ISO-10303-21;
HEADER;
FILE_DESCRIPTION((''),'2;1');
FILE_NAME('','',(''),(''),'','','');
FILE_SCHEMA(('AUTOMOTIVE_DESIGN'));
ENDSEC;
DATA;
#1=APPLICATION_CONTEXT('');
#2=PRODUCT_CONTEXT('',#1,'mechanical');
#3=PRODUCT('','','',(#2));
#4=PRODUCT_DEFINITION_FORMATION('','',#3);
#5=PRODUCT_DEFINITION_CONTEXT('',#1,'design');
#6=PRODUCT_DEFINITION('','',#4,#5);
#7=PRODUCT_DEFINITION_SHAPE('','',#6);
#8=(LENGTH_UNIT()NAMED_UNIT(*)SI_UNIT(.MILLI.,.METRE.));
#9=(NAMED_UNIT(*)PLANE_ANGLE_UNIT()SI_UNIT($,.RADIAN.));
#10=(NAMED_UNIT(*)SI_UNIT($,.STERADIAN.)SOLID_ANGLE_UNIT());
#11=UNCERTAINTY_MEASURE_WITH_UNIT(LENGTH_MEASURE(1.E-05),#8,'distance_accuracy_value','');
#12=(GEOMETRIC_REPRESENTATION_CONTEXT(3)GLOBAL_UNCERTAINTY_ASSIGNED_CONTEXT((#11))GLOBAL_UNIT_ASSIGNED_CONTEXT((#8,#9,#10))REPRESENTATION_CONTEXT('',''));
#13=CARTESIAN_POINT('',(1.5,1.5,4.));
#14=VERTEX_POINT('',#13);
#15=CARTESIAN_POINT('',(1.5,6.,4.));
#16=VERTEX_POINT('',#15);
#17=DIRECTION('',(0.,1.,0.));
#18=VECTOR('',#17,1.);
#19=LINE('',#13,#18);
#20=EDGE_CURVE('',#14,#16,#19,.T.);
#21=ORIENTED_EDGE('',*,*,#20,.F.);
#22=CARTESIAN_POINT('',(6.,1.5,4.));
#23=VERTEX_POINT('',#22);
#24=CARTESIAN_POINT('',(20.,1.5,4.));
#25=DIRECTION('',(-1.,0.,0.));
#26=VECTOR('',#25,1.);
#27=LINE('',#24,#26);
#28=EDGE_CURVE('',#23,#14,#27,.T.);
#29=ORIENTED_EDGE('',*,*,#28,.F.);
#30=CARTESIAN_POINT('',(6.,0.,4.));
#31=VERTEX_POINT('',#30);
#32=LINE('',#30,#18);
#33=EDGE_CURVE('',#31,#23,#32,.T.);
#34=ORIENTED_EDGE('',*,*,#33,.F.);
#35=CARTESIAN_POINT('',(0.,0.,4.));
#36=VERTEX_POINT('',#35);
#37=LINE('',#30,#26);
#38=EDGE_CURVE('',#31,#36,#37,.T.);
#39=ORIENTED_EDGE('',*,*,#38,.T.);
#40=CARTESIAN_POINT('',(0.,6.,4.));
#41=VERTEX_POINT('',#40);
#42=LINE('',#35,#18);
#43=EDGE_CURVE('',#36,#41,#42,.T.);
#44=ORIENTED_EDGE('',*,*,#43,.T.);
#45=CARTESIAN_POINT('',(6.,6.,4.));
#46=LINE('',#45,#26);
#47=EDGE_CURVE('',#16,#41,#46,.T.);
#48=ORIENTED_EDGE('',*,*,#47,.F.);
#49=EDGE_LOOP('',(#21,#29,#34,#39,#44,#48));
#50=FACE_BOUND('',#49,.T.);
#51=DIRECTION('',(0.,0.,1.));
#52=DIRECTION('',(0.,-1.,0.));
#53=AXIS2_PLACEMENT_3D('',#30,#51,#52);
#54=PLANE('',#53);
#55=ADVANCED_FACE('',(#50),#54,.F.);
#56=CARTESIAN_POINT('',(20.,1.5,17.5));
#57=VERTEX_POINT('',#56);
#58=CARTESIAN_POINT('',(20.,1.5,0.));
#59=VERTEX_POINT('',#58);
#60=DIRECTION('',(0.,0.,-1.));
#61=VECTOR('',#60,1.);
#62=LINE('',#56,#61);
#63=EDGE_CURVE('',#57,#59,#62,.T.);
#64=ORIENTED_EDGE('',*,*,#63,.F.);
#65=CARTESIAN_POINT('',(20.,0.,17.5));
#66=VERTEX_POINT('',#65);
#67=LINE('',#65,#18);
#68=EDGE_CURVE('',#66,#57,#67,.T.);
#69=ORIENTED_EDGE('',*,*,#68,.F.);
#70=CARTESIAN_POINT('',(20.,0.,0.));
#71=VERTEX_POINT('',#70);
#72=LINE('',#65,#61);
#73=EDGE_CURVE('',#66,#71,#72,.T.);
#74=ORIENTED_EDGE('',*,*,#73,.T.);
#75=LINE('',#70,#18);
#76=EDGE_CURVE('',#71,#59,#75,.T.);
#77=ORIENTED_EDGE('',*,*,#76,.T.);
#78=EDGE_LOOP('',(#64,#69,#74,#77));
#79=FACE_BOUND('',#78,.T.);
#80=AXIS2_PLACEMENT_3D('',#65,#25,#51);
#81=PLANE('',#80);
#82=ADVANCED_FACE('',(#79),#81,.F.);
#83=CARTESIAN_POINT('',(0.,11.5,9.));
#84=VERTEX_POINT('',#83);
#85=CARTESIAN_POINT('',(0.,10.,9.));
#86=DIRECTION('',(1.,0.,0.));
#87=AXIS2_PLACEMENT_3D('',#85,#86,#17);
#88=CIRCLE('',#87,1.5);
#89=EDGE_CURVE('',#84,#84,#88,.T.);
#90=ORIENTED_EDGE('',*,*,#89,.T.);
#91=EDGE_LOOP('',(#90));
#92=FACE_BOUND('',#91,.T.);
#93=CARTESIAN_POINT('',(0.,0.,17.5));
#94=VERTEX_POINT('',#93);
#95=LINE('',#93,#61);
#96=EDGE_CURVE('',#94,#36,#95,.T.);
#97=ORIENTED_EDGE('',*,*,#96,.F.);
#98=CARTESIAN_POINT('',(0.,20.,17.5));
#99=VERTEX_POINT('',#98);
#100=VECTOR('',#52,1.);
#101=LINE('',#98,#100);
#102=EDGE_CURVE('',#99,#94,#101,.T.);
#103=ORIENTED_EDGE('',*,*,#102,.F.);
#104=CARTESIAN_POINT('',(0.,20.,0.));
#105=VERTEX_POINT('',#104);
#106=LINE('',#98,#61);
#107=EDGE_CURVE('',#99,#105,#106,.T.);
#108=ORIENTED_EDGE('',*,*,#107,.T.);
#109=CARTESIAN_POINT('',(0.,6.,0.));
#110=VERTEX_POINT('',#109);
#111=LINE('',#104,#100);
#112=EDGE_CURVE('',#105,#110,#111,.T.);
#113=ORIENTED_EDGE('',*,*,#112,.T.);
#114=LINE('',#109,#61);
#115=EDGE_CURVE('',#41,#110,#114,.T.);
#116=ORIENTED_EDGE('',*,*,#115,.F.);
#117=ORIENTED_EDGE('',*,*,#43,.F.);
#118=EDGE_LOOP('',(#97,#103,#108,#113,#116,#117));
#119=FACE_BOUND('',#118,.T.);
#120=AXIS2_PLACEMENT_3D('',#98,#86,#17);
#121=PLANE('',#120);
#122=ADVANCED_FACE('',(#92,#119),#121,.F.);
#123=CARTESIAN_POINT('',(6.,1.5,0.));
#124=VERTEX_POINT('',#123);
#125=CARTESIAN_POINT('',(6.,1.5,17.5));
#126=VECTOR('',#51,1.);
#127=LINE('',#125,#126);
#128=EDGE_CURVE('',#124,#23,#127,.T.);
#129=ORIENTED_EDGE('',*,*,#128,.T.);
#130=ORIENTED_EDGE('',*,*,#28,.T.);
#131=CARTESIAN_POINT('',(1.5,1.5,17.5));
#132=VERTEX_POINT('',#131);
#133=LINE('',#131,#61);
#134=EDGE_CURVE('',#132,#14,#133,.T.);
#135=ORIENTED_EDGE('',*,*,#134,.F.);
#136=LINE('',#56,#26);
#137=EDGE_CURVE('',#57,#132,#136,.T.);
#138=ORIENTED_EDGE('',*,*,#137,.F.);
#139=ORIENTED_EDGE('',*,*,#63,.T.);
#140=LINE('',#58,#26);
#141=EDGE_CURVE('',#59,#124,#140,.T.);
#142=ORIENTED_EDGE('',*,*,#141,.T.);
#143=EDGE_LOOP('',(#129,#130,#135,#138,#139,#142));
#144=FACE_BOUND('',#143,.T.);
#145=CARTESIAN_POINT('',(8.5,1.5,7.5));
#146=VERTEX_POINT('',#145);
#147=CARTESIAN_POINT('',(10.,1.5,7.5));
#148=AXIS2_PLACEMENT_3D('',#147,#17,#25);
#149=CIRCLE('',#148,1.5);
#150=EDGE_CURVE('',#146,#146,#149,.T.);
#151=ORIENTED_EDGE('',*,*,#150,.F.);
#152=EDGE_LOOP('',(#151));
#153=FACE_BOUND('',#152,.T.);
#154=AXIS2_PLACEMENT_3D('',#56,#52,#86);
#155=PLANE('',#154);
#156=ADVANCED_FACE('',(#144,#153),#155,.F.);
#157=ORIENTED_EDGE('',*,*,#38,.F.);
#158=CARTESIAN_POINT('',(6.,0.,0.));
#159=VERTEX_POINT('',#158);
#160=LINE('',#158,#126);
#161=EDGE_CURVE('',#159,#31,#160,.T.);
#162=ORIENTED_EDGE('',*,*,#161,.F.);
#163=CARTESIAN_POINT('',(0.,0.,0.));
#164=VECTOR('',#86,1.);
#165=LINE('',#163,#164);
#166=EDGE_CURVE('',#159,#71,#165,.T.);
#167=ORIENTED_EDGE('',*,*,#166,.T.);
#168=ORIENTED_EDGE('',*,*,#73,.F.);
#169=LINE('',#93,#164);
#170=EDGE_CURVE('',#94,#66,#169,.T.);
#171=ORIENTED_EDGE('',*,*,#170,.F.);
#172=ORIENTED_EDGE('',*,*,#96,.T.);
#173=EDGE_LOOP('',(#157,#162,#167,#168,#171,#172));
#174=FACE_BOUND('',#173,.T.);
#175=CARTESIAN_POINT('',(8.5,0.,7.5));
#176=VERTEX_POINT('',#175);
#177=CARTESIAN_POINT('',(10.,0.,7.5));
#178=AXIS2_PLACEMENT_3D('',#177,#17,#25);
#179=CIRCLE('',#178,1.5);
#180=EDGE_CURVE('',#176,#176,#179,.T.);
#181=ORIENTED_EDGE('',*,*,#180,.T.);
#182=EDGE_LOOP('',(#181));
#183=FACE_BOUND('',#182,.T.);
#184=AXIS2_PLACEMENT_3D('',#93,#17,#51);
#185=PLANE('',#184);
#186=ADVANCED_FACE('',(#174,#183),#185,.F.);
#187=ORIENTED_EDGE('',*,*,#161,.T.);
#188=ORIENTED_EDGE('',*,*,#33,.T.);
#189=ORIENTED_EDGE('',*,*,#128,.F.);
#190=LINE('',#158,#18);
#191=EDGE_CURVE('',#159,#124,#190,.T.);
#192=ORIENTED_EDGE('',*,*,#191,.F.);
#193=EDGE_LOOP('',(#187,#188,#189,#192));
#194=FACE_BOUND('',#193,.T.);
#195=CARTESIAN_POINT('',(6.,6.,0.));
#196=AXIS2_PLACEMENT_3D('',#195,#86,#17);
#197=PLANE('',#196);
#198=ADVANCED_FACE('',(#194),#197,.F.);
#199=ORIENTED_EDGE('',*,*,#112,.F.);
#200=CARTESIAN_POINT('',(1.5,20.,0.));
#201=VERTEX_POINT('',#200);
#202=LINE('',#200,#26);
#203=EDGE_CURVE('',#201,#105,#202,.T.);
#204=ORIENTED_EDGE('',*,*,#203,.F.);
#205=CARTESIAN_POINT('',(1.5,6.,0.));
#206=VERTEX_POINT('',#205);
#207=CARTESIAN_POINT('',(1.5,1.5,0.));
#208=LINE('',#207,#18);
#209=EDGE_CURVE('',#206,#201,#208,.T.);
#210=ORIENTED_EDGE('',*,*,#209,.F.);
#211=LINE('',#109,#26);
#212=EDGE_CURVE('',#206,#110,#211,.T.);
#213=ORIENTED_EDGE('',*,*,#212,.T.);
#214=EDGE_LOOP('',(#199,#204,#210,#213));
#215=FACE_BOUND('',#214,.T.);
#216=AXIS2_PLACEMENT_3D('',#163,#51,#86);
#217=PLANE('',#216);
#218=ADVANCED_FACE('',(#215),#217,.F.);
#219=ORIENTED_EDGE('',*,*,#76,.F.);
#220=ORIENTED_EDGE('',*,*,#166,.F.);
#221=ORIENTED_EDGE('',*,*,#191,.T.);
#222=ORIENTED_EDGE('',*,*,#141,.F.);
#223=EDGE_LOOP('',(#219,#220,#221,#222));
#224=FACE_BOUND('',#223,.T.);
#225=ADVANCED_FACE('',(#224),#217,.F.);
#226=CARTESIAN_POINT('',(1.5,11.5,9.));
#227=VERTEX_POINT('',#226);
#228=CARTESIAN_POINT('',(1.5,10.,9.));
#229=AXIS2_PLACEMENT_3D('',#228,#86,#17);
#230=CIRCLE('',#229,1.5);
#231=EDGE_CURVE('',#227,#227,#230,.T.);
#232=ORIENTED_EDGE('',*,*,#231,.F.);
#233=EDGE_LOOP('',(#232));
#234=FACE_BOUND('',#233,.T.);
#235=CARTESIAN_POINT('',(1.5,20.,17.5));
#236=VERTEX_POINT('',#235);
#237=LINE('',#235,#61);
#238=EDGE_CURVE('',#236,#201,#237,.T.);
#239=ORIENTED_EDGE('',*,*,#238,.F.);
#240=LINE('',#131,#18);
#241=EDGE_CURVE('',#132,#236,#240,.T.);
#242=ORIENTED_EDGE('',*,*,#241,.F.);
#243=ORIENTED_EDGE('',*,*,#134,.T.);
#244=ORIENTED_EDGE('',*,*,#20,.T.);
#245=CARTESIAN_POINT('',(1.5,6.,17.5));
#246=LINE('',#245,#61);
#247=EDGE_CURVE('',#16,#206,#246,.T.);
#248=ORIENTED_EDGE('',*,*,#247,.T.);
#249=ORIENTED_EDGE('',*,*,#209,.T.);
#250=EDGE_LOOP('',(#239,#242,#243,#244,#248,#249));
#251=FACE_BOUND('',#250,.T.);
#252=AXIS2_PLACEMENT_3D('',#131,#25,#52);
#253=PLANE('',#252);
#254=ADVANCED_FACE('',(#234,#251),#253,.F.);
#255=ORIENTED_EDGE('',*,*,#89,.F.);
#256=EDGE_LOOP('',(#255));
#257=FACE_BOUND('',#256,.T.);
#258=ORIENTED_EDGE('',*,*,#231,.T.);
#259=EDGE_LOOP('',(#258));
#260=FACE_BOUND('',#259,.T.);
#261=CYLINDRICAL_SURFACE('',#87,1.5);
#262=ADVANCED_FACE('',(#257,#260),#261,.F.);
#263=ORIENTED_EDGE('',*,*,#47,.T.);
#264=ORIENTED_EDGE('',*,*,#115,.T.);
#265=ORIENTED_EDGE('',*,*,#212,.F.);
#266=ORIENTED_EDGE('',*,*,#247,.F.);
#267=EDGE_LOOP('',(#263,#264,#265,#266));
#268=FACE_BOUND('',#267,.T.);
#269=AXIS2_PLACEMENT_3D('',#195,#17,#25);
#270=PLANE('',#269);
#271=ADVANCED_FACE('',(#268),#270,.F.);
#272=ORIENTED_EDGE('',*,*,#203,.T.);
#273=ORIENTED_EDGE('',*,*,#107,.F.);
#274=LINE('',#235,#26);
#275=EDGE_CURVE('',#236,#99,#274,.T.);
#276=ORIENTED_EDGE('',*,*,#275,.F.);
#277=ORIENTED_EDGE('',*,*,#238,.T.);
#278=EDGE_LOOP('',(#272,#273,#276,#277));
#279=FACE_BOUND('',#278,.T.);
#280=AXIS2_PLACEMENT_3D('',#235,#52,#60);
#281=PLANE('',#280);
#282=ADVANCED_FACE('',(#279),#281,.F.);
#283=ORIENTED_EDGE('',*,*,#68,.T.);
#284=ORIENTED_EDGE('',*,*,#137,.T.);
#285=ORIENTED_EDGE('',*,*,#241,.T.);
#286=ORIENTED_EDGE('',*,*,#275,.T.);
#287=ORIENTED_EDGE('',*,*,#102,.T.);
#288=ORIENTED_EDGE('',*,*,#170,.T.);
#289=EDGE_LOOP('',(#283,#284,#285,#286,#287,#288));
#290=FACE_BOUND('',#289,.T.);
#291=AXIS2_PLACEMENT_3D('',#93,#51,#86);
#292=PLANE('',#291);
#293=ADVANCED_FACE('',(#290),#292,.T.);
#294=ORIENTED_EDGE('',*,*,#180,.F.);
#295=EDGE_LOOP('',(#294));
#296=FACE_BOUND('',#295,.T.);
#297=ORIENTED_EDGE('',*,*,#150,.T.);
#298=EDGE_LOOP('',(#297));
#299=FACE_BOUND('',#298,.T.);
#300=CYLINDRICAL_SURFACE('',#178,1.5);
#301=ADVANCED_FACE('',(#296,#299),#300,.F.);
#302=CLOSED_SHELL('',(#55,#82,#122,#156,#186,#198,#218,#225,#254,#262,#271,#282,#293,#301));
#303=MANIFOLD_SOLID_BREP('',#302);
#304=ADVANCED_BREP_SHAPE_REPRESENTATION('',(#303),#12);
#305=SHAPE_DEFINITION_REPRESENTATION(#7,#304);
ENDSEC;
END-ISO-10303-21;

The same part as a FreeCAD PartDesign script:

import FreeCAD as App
import Part
import Sketcher
from FreeCAD import Vector


def add_polygon(sketch, points):
    """Adds a closed chain of lines whose ends are joined by coincident constraints."""
    first, n = sketch.GeometryCount, len(points)
    for a, b in zip(points, points[1:] + points[:1]):
        sketch.addGeometry(Part.LineSegment(App.Vector(*a, 0), App.Vector(*b, 0)), False)
    for i in range(n):
        sketch.addConstraint(Sketcher.Constraint("Coincident", first + i, 2, first + (i + 1) % n, 1))

doc = App.newDocument("Part")
params = doc.addObject("Spreadsheet::Sheet", "Params")
for row, (alias, value) in enumerate([
    ("sketch1_width", "20 mm"),
    ("sketch1_width2", "18.5 mm"),
    ("pad1_length", "17.5 mm"),
    ("sketch2_diameter", "3 mm"),
    ("sketch3_diameter", "3 mm"),
    ("sketch4_width", "6 mm"),
    ("sketch4_height", "4 mm"),
    ("pocket3_length", "6 mm"),
], start=1):
    params.set(f"A{row}", alias)
    params.set(f"B{row}", "=" + value)
    params.setAlias(f"B{row}", alias)

body = doc.addObject("PartDesign::Body", "Body")

# Sketch on XY plane
sketch1 = body.newObject("Sketcher::SketchObject", "Sketch")
sketch1.AttachmentSupport = (doc.getObject("XY_Plane"), [""])
sketch1.MapMode = "FlatFace"
add_polygon(sketch1, [(0, 0), (20, 0), (20, 1.5), (1.5, 1.5), (1.5, 20), (0, 20)])  # lines 0-5
sketch1.addConstraint([
    Sketcher.Constraint("Horizontal", 0),
    Sketcher.Constraint("Vertical", 1),
    Sketcher.Constraint("Horizontal", 2),
    Sketcher.Constraint("Vertical", 3),
    Sketcher.Constraint("Horizontal", 4),
    Sketcher.Constraint("Vertical", 5),
    Sketcher.Constraint("Coincident", 5, 2, -1, 1),
    Sketcher.Constraint("Equal", 4, 1),
    Sketcher.Constraint("Equal", 2, 3),
    Sketcher.Constraint("DistanceX", 0, 1, 0, 2, 20.0),
    Sketcher.Constraint("DistanceX", 2, 2, 2, 1, 18.5),
])
sketch1.setExpression("Constraints[15]", "Params.sketch1_width")
sketch1.setExpression("Constraints[16]", "Params.sketch1_width2")
pad1 = body.newObject("PartDesign::Pad", "Pad")
pad1.Profile = sketch1
pad1.setExpression("Length", "Params.pad1_length")

# Sketch on XZ plane
sketch2 = body.newObject("Sketcher::SketchObject", "Sketch001")
sketch2.AttachmentSupport = (doc.getObject("XZ_Plane"), [""])
sketch2.MapMode = "FlatFace"
sketch2.AttachmentOffset = App.Placement(Vector(0, 0, -1.5), App.Rotation())
sketch2.addGeometry(Part.Circle(Vector(10, 7.5, 0), Vector(0, 0, 1), 1.5), False)
sketch2.addConstraint([
    Sketcher.Constraint("Diameter", 0, 3.0),
    Sketcher.Constraint("DistanceX", -1, 1, 0, 3, 10.0),
    Sketcher.Constraint("DistanceY", -1, 1, 0, 3, 7.5),
])
sketch2.setExpression("Constraints[0]", "Params.sketch2_diameter")
pocket1 = body.newObject("PartDesign::Pocket", "Pocket")
pocket1.Profile = sketch2
pocket1.Type = "ThroughAll"
pocket1.Reversed = True

# Sketch on YZ plane
sketch3 = body.newObject("Sketcher::SketchObject", "Sketch002")
sketch3.AttachmentSupport = (doc.getObject("YZ_Plane"), [""])
sketch3.MapMode = "FlatFace"
sketch3.AttachmentOffset = App.Placement(Vector(0, 0, 1.5), App.Rotation())
sketch3.addGeometry(Part.Circle(Vector(10, 9, 0), Vector(0, 0, 1), 1.5), False)
sketch3.addConstraint([
    Sketcher.Constraint("Diameter", 0, 3.0),
    Sketcher.Constraint("DistanceX", -1, 1, 0, 3, 10.0),
    Sketcher.Constraint("DistanceY", -1, 1, 0, 3, 9.0),
])
sketch3.setExpression("Constraints[0]", "Params.sketch3_diameter")
pocket2 = body.newObject("PartDesign::Pocket", "Pocket001")
pocket2.Profile = sketch3
pocket2.Type = "ThroughAll"

# Sketch on YZ plane
sketch4 = body.newObject("Sketcher::SketchObject", "Sketch003")
sketch4.AttachmentSupport = (doc.getObject("YZ_Plane"), [""])
sketch4.MapMode = "FlatFace"
add_polygon(sketch4, [(6, 0), (0, 0), (0, 4), (6, 4)])  # lines 0-3
sketch4.addConstraint([
    Sketcher.Constraint("Horizontal", 0),
    Sketcher.Constraint("Vertical", 1),
    Sketcher.Constraint("Horizontal", 2),
    Sketcher.Constraint("Vertical", 3),
    Sketcher.Constraint("Coincident", 0, 2, -1, 1),
    Sketcher.Constraint("DistanceX", 0, 2, 0, 1, 6.0),
    Sketcher.Constraint("DistanceY", 1, 1, 1, 2, 4.0),
])
sketch4.setExpression("Constraints[9]", "Params.sketch4_width")
sketch4.setExpression("Constraints[10]", "Params.sketch4_height")
pocket3 = body.newObject("PartDesign::Pocket", "Pocket002")
pocket3.Profile = sketch4
pocket3.setExpression("Length", "Params.pocket3_length")
pocket3.Reversed = True

doc.recompute()
